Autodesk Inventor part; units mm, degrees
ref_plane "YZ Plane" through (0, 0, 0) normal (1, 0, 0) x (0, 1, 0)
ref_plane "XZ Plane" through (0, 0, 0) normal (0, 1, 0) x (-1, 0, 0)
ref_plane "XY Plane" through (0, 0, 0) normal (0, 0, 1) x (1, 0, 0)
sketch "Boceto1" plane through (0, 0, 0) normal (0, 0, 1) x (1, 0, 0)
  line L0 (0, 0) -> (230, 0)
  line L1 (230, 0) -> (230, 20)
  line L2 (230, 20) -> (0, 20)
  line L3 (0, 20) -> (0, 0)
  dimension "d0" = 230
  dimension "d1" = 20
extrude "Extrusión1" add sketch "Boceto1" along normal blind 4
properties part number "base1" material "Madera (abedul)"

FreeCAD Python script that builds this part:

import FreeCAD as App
import Part
import Sketcher
from FreeCAD import Vector
Q = App.Units.Quantity

doc = App.newDocument("Part")
params = doc.addObject("Spreadsheet::Sheet", "Params")
for row, (alias, value) in enumerate([
    ("sketch1_width", "230 mm"),
    ("sketch1_height", "20 mm"),
    ("pad1_length", "4 mm"),
], start=1):
    params.set(f"A{row}", alias)
    params.set(f"B{row}", "=" + value)
    params.setAlias(f"B{row}", alias)

body = doc.addObject("PartDesign::Body", "Body")

# Sketch on XY plane
sketch1 = body.newObject("Sketcher::SketchObject", "Sketch")
sketch1.AttachmentSupport = (doc.getObject("XY_Plane"), [""])
sketch1.MapMode = "FlatFace"
sketch1.addGeometry(Part.LineSegment(Vector(0, 20, 0), Vector(0, 0, 0)), False)
sketch1.addGeometry(Part.LineSegment(Vector(0, 0, 0), Vector(230, 0, 0)), False)
sketch1.addGeometry(Part.LineSegment(Vector(230, 0, 0), Vector(230, 20, 0)), False)
sketch1.addGeometry(Part.LineSegment(Vector(230, 20, 0), Vector(0, 20, 0)), False)
sketch1.addConstraint(Sketcher.Constraint("Coincident", 0, 2, 1, 1))
sketch1.addConstraint(Sketcher.Constraint("Coincident", 1, 2, 2, 1))
sketch1.addConstraint(Sketcher.Constraint("Coincident", 2, 2, 3, 1))
sketch1.addConstraint(Sketcher.Constraint("Coincident", 3, 2, 0, 1))
sketch1.addConstraint(Sketcher.Constraint("Vertical", 0))
sketch1.addConstraint(Sketcher.Constraint("Horizontal", 1))
sketch1.addConstraint(Sketcher.Constraint("Vertical", 2))
sketch1.addConstraint(Sketcher.Constraint("Horizontal", 3))
sketch1.addConstraint(Sketcher.Constraint("Coincident", 0, 2, -1, 1))
sketch1.addConstraint(Sketcher.Constraint("DistanceX", 1, 1, 1, 2, Q("230 mm")))
sketch1.addConstraint(Sketcher.Constraint("DistanceY", 0, 2, 0, 1, Q("20 mm")))
sketch1.setExpression("Constraints[9]", "Params.sketch1_width")
sketch1.setExpression("Constraints[10]", "Params.sketch1_height")
pad1 = body.newObject("PartDesign::Pad", "Pad")
pad1.Profile = sketch1
pad1.setExpression("Length", "Params.pad1_length")

doc.recompute()
